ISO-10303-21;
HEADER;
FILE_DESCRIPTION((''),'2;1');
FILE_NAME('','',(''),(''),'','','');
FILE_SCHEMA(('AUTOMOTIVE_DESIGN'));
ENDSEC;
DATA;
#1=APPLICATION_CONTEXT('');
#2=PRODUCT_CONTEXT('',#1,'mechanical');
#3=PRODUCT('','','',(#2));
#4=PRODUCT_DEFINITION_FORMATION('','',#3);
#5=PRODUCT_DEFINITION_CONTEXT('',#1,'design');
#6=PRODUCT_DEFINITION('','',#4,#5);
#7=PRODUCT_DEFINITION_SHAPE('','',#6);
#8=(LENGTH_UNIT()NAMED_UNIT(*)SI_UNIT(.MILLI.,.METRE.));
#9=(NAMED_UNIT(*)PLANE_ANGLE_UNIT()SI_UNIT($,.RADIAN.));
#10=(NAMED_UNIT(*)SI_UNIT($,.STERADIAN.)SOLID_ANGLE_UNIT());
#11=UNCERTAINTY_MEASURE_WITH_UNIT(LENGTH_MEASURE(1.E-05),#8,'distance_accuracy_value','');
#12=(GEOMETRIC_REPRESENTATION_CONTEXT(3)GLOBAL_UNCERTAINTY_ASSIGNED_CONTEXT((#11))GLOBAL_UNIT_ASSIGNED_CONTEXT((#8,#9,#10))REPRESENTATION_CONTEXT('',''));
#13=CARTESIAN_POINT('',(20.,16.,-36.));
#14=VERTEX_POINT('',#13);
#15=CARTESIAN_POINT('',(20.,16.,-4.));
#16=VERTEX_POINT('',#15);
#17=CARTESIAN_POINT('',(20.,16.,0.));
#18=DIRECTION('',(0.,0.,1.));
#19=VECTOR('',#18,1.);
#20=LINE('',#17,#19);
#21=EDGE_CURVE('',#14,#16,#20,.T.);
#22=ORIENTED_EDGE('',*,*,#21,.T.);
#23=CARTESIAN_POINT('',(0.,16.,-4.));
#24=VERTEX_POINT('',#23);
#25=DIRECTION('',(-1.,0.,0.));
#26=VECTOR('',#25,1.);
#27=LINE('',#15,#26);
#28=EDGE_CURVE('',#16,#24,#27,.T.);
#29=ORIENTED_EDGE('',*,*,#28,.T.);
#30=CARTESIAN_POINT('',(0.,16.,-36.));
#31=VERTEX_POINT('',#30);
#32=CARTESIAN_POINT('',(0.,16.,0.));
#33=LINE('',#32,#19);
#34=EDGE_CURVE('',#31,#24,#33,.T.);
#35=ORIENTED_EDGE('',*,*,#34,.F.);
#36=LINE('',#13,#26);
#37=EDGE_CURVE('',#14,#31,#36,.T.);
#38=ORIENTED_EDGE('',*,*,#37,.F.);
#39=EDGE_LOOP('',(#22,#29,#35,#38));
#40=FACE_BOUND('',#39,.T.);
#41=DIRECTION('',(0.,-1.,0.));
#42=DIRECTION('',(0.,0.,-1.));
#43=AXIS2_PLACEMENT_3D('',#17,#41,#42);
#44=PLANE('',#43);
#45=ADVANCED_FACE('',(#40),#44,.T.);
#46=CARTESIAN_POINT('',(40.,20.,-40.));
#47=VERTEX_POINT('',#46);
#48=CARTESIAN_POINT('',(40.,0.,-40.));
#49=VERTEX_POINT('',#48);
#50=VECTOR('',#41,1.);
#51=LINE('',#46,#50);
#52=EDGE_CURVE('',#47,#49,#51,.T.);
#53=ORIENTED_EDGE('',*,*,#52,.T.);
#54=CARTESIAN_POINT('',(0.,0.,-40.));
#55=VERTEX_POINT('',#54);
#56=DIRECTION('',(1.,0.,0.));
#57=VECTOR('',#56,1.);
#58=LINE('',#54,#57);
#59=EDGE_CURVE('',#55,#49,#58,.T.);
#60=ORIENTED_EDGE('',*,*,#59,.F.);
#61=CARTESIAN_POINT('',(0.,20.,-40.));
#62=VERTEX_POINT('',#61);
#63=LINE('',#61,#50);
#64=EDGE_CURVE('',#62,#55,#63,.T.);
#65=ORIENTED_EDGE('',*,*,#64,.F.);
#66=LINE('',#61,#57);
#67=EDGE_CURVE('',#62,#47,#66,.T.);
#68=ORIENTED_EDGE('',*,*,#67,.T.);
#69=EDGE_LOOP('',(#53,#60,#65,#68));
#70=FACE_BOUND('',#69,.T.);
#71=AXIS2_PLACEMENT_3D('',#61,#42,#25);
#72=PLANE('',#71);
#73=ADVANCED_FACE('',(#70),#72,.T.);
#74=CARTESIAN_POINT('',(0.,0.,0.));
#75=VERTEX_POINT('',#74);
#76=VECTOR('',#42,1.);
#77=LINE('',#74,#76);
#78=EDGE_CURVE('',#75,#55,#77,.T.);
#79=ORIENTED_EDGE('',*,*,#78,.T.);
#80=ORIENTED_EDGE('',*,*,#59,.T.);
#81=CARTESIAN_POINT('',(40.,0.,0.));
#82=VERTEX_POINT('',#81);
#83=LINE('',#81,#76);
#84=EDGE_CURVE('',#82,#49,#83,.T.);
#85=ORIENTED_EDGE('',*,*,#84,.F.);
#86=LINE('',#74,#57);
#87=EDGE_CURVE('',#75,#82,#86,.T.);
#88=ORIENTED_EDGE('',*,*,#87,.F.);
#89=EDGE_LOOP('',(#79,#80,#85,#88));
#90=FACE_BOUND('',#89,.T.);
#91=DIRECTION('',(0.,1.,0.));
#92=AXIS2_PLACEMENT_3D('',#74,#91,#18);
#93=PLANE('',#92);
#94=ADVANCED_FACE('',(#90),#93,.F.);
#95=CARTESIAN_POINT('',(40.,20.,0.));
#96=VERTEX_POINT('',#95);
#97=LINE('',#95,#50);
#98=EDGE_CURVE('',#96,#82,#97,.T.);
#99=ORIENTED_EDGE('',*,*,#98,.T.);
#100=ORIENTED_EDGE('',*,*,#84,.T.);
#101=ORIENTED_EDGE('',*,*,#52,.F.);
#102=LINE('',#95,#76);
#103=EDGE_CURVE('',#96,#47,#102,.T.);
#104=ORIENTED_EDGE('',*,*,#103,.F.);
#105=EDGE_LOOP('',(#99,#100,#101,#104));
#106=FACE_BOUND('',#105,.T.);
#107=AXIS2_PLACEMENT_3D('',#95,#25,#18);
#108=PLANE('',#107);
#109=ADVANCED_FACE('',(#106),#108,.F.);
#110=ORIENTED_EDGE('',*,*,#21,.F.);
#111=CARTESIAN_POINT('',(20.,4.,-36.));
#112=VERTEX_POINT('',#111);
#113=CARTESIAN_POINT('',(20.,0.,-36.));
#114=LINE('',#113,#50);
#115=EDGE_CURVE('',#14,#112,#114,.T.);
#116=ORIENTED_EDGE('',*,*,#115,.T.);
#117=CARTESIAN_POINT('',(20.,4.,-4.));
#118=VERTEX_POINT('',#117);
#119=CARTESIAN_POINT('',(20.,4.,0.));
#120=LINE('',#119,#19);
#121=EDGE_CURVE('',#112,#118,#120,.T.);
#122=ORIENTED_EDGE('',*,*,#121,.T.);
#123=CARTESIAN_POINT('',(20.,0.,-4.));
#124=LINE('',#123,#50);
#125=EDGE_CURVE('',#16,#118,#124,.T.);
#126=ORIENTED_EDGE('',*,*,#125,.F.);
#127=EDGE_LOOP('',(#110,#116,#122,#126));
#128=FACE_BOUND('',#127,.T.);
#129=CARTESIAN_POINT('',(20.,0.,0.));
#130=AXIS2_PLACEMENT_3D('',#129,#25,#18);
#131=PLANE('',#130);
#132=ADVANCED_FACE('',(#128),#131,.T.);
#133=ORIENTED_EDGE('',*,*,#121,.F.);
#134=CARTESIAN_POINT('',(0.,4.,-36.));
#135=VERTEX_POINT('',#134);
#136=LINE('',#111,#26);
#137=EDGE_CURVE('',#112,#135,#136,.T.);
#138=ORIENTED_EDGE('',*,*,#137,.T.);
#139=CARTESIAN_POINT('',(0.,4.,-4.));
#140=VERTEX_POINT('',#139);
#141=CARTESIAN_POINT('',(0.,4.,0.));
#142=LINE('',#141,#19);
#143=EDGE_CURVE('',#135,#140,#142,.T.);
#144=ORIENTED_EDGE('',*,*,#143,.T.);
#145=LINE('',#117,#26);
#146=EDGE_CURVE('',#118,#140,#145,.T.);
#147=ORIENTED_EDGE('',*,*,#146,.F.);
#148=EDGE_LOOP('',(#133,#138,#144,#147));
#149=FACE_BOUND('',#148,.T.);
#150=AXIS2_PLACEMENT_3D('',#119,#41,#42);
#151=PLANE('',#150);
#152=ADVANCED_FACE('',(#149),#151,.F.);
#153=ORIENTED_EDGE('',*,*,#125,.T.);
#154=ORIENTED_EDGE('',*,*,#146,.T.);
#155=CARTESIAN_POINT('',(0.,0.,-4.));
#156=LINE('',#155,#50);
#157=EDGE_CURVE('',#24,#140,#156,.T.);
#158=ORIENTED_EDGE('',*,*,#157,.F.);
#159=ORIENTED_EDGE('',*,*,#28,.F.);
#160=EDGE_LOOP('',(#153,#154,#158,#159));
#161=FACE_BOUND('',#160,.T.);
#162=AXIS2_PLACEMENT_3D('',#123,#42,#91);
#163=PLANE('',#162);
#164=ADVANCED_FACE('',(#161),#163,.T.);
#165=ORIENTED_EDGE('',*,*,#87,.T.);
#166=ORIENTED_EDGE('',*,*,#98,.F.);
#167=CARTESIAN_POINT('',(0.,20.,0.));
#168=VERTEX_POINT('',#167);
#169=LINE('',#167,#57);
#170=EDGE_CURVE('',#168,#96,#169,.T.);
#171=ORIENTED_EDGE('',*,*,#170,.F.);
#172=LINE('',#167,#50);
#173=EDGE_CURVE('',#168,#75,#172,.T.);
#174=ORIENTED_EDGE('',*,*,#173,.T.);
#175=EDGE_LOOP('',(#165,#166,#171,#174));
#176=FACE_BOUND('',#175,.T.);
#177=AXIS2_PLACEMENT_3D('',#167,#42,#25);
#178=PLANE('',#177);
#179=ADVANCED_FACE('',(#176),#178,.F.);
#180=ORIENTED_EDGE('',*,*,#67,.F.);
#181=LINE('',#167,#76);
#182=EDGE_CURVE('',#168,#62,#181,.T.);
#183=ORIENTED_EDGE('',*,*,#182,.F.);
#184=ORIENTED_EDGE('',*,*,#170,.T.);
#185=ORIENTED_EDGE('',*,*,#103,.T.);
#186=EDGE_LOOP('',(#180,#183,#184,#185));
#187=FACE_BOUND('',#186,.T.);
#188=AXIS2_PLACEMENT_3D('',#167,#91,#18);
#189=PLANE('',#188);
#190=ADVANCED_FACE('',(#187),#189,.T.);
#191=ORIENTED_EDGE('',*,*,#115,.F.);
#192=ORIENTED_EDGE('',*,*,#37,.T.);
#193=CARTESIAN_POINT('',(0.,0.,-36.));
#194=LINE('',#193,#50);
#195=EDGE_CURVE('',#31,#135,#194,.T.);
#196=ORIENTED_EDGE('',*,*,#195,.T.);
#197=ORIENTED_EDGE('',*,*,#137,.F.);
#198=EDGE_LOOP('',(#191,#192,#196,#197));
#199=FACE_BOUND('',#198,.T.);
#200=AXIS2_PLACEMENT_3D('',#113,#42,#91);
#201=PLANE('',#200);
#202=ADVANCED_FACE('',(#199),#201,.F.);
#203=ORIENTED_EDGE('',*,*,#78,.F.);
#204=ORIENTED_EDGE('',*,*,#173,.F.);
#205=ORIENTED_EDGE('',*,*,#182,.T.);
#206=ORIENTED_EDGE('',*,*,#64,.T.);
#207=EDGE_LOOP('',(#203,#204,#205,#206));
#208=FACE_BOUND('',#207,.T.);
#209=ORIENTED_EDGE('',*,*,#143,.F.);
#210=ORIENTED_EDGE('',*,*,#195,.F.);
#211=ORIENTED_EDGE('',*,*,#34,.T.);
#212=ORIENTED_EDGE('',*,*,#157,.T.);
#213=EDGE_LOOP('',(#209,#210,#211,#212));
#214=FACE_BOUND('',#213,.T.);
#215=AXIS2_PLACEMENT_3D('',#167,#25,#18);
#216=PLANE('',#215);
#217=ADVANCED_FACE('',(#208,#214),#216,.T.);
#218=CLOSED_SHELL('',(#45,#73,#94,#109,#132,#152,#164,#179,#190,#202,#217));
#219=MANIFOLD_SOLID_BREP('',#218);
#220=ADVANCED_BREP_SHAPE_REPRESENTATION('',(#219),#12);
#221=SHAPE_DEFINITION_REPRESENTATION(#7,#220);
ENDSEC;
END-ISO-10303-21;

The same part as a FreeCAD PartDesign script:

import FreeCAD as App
import Part
import Sketcher


def add_polygon(sketch, points):
    """Adds a closed chain of lines whose ends are joined by coincident constraints."""
    first, n = sketch.GeometryCount, len(points)
    for a, b in zip(points, points[1:] + points[:1]):
        sketch.addGeometry(Part.LineSegment(App.Vector(*a, 0), App.Vector(*b, 0)), False)
    for i in range(n):
        sketch.addConstraint(Sketcher.Constraint("Coincident", first + i, 2, first + (i + 1) % n, 1))

doc = App.newDocument("Part")
body = doc.addObject("PartDesign::Body", "Body")

# Sketch on XZ plane
sketch1 = doc.addObject("Sketcher::SketchObject", "Sketch")
body.addObject(sketch1)
sketch1.AttachmentSupport = (doc.XZ_Plane, [""])
sketch1.MapMode = "FlatFace"
add_polygon(sketch1, [(0, -40), (0, 0), (40, 0), (40, -40)])  # lines 0-3
sketch1.addConstraint([
    Sketcher.Constraint("Vertical", 0),
    Sketcher.Constraint("Horizontal", 1),
    Sketcher.Constraint("Vertical", 2),
    Sketcher.Constraint("Horizontal", 3),
    Sketcher.Constraint("Coincident", 0, 2, -1, 1),
    Sketcher.Constraint("Equal", 3, 0),
    Sketcher.Constraint("DistanceX", 1, 1, 1, 2, 40.0),
])
pad1 = doc.addObject("PartDesign::Pad", "Pad")
body.addObject(pad1)
pad1.Profile = sketch1
pad1.Length = 20
pad1.Reversed = True

# Sketch on YZ plane
sketch2 = doc.addObject("Sketcher::SketchObject", "Sketch001")
body.addObject(sketch2)
sketch2.AttachmentSupport = (doc.YZ_Plane, [""])
sketch2.MapMode = "FlatFace"
add_polygon(sketch2, [(16, -36), (4, -36), (4, -4), (16, -4)])  # lines 0-3
sketch2.addConstraint([
    Sketcher.Constraint("Horizontal", 0),
    Sketcher.Constraint("Vertical", 1),
    Sketcher.Constraint("Horizontal", 2),
    Sketcher.Constraint("Vertical", 3),
    Sketcher.Constraint("DistanceX", 0, 2, 0, 1, 12.0),
    Sketcher.Constraint("DistanceY", 1, 1, 1, 2, 32.0),
    Sketcher.Constraint("DistanceX", -1, 1, 0, 2, 4.0),
    Sketcher.Constraint("DistanceY", 0, 2, -1, 1, 36.0),
])
pocket1 = doc.addObject("PartDesign::Pocket", "Pocket")
body.addObject(pocket1)
pocket1.Profile = sketch2
pocket1.Length = 20
pocket1.Reversed = True

doc.recompute()
